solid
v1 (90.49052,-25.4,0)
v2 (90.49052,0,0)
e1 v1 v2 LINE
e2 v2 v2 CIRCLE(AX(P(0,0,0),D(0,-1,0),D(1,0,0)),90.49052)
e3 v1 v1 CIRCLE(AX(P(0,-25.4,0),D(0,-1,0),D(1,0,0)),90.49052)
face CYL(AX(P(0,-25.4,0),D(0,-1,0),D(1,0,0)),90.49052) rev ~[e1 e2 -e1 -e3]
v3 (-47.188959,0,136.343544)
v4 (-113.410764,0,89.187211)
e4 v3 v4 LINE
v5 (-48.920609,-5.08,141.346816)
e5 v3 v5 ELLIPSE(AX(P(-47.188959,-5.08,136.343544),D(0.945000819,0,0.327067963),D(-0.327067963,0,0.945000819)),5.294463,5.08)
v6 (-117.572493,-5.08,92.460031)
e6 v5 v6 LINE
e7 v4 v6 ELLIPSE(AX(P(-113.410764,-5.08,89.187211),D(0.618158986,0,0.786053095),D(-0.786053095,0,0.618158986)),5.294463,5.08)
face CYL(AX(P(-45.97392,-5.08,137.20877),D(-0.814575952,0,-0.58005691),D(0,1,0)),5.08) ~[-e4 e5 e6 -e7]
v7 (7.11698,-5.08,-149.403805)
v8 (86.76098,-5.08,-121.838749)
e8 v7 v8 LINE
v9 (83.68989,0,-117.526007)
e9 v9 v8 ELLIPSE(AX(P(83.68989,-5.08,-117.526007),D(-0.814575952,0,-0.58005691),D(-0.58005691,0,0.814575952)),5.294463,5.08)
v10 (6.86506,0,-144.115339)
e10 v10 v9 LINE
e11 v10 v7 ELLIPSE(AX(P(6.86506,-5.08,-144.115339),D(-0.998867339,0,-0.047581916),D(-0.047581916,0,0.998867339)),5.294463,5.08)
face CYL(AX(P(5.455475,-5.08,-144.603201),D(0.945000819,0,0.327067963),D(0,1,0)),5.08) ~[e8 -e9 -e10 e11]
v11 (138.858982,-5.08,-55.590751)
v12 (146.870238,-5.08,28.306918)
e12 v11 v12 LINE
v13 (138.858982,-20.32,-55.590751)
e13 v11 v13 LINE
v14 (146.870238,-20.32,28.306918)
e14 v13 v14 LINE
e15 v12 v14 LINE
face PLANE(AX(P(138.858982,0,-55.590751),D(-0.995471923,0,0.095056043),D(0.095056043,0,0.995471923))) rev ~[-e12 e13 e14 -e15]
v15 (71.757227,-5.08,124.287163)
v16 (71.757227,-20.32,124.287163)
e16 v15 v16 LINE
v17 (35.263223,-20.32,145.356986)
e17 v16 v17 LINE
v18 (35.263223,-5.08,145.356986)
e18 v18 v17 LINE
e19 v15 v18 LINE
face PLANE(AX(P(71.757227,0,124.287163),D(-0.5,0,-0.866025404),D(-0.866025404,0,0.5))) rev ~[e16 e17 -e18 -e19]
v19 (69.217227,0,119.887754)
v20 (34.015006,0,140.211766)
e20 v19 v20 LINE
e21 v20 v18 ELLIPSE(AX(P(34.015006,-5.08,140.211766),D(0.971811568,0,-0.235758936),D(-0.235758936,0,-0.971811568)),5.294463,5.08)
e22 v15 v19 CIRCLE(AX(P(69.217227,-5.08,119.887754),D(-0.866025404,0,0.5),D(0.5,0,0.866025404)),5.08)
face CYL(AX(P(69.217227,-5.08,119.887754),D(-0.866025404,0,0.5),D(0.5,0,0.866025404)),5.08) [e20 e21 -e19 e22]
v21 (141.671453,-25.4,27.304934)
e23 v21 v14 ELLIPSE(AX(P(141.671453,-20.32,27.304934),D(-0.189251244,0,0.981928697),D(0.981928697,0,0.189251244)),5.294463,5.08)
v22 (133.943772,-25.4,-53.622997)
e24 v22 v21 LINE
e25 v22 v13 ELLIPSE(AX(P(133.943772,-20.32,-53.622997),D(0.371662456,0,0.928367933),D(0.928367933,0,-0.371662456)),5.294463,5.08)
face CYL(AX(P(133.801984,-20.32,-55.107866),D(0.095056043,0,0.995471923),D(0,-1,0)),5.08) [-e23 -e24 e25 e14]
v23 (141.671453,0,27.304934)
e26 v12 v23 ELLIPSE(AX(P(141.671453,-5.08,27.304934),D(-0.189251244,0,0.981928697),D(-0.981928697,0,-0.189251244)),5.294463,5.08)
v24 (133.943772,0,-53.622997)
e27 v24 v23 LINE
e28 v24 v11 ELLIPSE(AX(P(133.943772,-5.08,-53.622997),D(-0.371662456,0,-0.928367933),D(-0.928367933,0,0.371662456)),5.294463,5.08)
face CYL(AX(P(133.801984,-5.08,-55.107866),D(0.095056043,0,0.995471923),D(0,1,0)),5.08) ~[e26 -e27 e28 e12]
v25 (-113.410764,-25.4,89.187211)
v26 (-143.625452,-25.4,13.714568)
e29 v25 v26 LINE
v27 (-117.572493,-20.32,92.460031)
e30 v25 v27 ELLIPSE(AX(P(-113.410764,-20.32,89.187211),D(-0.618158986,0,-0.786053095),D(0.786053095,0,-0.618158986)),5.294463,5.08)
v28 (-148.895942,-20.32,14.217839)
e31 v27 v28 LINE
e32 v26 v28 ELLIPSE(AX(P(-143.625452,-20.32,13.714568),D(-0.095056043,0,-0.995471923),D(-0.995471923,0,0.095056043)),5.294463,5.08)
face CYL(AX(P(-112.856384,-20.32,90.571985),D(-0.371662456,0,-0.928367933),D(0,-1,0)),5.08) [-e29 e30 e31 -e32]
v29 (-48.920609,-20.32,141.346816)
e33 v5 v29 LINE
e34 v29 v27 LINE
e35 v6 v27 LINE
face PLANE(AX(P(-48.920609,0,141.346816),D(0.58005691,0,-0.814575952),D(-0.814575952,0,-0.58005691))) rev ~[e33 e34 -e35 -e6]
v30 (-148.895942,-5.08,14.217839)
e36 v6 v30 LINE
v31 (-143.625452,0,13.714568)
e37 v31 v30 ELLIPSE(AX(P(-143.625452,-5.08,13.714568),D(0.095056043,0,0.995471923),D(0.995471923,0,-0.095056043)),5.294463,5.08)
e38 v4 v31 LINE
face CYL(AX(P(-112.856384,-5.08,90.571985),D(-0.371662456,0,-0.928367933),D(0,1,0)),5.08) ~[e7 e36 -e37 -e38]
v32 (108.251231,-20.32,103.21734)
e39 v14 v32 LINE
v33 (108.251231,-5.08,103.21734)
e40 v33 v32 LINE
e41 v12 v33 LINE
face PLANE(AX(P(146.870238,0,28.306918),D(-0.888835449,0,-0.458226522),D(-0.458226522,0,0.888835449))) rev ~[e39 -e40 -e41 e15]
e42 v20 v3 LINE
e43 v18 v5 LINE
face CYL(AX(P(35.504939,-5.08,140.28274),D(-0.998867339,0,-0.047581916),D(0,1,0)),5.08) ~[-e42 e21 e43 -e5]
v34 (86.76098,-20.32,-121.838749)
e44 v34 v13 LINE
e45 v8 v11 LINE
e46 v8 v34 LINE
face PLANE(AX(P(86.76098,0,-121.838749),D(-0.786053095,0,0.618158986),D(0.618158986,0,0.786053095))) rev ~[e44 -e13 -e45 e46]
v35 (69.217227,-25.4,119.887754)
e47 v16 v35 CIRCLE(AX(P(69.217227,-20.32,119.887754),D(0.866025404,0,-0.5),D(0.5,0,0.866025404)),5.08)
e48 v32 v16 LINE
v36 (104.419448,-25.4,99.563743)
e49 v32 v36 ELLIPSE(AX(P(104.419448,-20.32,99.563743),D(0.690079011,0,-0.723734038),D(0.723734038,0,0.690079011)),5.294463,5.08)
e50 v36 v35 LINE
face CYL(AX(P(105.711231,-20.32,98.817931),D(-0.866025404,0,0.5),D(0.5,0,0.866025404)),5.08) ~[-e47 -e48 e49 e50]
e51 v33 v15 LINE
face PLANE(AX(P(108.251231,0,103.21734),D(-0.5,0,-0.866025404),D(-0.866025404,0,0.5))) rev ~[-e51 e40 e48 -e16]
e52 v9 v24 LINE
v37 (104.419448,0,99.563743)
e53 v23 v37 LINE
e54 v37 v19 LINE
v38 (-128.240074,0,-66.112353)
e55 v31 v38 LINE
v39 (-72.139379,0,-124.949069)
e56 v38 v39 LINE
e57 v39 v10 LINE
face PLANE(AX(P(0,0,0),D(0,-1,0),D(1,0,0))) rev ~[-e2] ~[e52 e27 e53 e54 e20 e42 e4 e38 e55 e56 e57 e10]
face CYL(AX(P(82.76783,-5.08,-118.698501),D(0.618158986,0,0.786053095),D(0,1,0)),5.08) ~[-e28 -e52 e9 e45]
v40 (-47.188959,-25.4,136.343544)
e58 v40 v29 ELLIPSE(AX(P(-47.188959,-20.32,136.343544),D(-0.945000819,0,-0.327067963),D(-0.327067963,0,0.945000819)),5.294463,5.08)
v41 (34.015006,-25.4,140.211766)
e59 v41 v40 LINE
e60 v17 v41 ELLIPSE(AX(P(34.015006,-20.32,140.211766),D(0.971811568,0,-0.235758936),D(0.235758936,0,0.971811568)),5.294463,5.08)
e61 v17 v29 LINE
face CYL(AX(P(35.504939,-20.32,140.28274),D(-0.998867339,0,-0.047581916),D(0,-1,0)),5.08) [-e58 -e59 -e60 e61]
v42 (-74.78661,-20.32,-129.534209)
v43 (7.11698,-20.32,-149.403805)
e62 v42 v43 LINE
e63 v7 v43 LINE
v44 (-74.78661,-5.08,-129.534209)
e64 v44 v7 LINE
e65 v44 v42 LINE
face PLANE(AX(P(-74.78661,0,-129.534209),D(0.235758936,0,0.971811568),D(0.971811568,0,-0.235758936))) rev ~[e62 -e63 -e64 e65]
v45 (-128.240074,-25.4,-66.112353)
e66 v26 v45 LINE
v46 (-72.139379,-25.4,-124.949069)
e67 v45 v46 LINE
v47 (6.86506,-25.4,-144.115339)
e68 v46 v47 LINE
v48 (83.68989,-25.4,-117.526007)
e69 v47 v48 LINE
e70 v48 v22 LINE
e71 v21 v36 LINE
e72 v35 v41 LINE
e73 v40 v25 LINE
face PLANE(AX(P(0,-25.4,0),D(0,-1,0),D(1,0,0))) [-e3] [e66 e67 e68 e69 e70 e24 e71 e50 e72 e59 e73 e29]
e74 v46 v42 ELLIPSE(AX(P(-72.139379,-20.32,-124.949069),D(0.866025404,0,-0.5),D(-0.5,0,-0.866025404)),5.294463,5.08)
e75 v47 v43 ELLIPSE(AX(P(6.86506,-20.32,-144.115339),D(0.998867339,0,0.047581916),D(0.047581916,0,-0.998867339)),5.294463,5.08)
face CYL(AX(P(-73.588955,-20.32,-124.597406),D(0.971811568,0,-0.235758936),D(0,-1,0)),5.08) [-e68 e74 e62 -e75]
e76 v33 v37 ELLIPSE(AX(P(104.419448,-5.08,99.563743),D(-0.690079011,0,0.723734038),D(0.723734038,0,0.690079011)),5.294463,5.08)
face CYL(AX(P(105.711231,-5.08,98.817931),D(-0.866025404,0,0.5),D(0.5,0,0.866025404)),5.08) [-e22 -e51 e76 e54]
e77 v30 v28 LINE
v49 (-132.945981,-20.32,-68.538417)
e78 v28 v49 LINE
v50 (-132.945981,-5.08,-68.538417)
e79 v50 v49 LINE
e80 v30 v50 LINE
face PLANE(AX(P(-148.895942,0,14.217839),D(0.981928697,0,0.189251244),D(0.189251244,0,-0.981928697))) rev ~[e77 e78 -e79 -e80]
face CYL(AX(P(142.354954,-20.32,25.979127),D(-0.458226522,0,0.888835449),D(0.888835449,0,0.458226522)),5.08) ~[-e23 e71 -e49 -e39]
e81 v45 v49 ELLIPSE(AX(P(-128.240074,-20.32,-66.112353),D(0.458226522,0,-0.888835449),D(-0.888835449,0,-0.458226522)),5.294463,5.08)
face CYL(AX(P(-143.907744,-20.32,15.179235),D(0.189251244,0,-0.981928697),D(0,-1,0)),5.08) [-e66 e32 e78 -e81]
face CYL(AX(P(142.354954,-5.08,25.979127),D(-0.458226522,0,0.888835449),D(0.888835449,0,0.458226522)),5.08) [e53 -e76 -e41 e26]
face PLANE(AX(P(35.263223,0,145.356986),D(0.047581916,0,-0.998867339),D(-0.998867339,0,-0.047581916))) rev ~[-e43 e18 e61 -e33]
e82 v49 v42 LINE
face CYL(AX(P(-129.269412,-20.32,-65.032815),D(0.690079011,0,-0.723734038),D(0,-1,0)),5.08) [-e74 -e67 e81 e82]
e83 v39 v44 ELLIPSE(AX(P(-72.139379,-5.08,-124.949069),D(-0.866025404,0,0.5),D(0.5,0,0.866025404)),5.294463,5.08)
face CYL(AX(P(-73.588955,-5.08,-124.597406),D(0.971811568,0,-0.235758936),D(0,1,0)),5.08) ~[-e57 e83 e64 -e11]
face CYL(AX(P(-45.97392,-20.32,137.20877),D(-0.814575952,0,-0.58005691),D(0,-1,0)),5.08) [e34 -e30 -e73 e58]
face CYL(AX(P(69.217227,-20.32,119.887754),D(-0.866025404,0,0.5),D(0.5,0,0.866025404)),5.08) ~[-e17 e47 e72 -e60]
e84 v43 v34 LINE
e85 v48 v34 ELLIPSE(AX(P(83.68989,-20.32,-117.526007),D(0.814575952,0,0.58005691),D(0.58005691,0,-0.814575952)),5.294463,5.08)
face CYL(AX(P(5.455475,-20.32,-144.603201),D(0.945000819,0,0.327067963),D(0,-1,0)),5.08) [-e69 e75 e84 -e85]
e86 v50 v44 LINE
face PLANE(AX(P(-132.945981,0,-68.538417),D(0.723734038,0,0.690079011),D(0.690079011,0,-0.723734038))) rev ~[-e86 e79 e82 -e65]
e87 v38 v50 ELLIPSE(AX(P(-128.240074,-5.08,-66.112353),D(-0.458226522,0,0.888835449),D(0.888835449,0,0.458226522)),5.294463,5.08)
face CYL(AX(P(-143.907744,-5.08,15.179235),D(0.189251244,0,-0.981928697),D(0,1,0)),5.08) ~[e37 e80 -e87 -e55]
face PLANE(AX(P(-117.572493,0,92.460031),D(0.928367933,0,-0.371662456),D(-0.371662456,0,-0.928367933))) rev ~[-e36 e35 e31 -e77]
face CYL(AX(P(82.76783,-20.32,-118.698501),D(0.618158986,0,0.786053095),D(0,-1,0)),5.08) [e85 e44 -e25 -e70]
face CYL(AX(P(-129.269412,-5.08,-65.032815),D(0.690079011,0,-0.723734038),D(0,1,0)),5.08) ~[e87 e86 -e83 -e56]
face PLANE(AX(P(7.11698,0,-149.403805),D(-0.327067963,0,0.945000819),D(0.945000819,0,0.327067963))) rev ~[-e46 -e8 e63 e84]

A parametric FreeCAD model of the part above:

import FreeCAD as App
import Part
import Sketcher
Q = App.Units.Quantity


def edges_at(feature, points):
    """Names of the edges that pass closest to the given points."""
    edges = feature.Shape.Edges
    near = lambda p: min(range(len(edges)), key=lambda i: edges[i].distToShape(Part.Vertex(*p))[0])
    return sorted({f"Edge{near(p) + 1}" for p in points})


def add_polygon(sketch, points):
    """Adds a closed chain of lines whose ends are joined by coincident constraints."""
    first, n = sketch.GeometryCount, len(points)
    for a, b in zip(points, points[1:] + points[:1]):
        sketch.addGeometry(Part.LineSegment(App.Vector(*a, 0), App.Vector(*b, 0)), False)
    for i in range(n):
        sketch.addConstraint(Sketcher.Constraint("Coincident", first + i, 2, first + (i + 1) % n, 1))

doc = App.newDocument("Part")
body = doc.addObject("PartDesign::Body", "Body")

sketch1 = body.newObject("Sketcher::SketchObject", "Sketch")
sketch1.AttachmentSupport = (doc.getObject("XZ_Plane"), [""])
sketch1.MapMode = "FlatFace"
add_polygon(sketch1, [(108.3, 103.2), (71.8, 124.3), (35.3, 145.4), (-48.9, 141.3), (-117.6, 92.5), (-148.9, 14.2), (-132.9, -68.5), (-74.8, -129.5), (7.1, -149.4), (86.8, -121.8), (138.9, -55.6), (146.9, 28.3)])
add_polygon(sketch1, [(-16.1, 73.6), (3.7, 78.9), (47.3, 62.4), (71.8, 25.1), (72.9, 23.3), (70.6, -23.3), (41.4, -59.7), (-3.7, -72), (-47.3, -55.4), (-72.9, -16.3), (-70.6, 30.3), (-53, 52.3)])
sketch1.addConstraint([
    Sketcher.Constraint("Parallel", 0, 1),
    Sketcher.Constraint("Parallel", 14, 15),
    Sketcher.Constraint("Parallel", 12, 18),
    Sketcher.Constraint("Parallel", 13, 19),
    Sketcher.Constraint("Parallel", 15, 20),
    Sketcher.Constraint("Parallel", 16, 21),
    Sketcher.Constraint("Parallel", 17, 22),
    Sketcher.Constraint("Vertical", 0, 2, 14, 2),
    Sketcher.Constraint("Equal", 0, 1),
    Sketcher.Constraint("Equal", 2, 3),
    Sketcher.Constraint("Equal", 3, 4),
    Sketcher.Constraint("Equal", 4, 5),
    Sketcher.Constraint("Equal", 5, 6),
    Sketcher.Constraint("Equal", 6, 7),
    Sketcher.Constraint("Equal", 7, 8),
    Sketcher.Constraint("Equal", 8, 9),
    Sketcher.Constraint("Equal", 9, 10),
    Sketcher.Constraint("Equal", 10, 11),
    Sketcher.Constraint("Equal", 13, 16),
    Sketcher.Constraint("Equal", 16, 17),
    Sketcher.Constraint("Equal", 17, 18),
    Sketcher.Constraint("Equal", 18, 19),
    Sketcher.Constraint("Equal", 19, 20),
    Sketcher.Constraint("Equal", 20, 21),
    Sketcher.Constraint("Angle", 0, Q("150 deg")),
    Sketcher.Constraint("Angle", 23, Q("30 deg")),
    Sketcher.Constraint("Angle", 12, Q("15.210015 deg")),
    Sketcher.Constraint("Angle", 13, Q("-20.789985 deg")),
    Sketcher.Constraint("Angle", 14, Q("-56.789985 deg")),
    Sketcher.Constraint("Angle", 16, Q("-92.789985 deg")),
    Sketcher.Constraint("Angle", 17, Q("-128.789985 deg")),
    Sketcher.Constraint("DistanceX", -1, 1, 12, 2, Q("3.676901 mm")),
    Sketcher.Constraint("DistanceX", 18, 2, -1, 1, Q("3.676901 mm")),
    Sketcher.Constraint("DistanceX", 6, 2, 2, 2, Q("25.866002 mm")),
    Sketcher.Constraint("DistanceX", 7, 2, 8, 2, Q("79.644 mm")),
    Sketcher.Constraint("DistanceX", 8, 2, 9, 2, Q("52.098002 mm")),
    Sketcher.Constraint("DistanceY", 8, 2, 9, 2, Q("66.247998 mm")),
    Sketcher.Constraint("DistanceY", 13, 2, 12, 2, Q("16.570899 mm")),
    Sketcher.Constraint("DistanceX", 5, 2, 19, 2, Q("85.6229 mm")),
    Sketcher.Constraint("DistanceX", 20, 2, 22, 2, Q("19.931502 mm")),
    Sketcher.Constraint("Distance", 14, Q("44.611509 mm")),
    Sketcher.Constraint("DistanceX", 2, 2, -1, 1, Q("48.920609 mm")),
    Sketcher.Constraint("DistanceY", -1, 1, 3, 2, Q("92.460031 mm")),
    Sketcher.Constraint("DistanceX", 4, 2, -1, 1, Q("148.895942 mm")),
    Sketcher.Constraint("DistanceY", -1, 1, 4, 2, Q("14.217839 mm")),
    Sketcher.Constraint("DistanceX", -1, 1, 7, 2, Q("7.11698 mm")),
    Sketcher.Constraint("DistanceY", -1, 1, 10, 2, Q("28.306918 mm")),
    Sketcher.Constraint("DistanceY", 17, 2, -1, 1, Q("59.704631 mm")),
])
pad1 = body.newObject("PartDesign::Pad", "Pad")
pad1.Profile = sketch1
pad1.Length = Q("1 in")

sketch2 = body.newObject("Sketcher::SketchObject", "Sketch001")
sketch2.AttachmentSupport = (doc.getObject("XZ_Plane"), [""])
sketch2.MapMode = "FlatFace"
sketch2.AttachmentOffset = App.Placement(App.Vector(0, 0, 1 * 25.4), App.Rotation())
sketch2.addGeometry(Part.Circle(App.Vector(0, 0, 0), App.Vector(0, 0, 1), 90.49052), False)
add_polygon(sketch2, [(47.323081, 62.376056), (72.893452, 23.315336), (70.621002, -23.315336), (41.37373, -59.704631), (-3.676901, -71.953073), (-47.323081, -55.382174), (-72.893452, -16.321455), (-70.621002, 30.309218), (-52.96195, 52.280513), (-16.076405, 73.576392), (3.676901, 78.946954)])
sketch2.addConstraint([
    Sketcher.Constraint("Coincident", 0, 3, -1, 1),
    Sketcher.Constraint("Diameter", 0, Q("180.98104 mm")),
    Sketcher.Constraint("DistanceX", 4, 2, -1, 1, Q("3.676901 mm")),
    Sketcher.Constraint("DistanceX", -1, 1, 10, 2, Q("3.676901 mm")),
    Sketcher.Constraint("DistanceY", 4, 2, 5, 2, Q("16.570899 mm")),
    Sketcher.Constraint("DistanceX", 7, 2, 4, 2, Q("66.944101 mm")),
    Sketcher.Constraint("DistanceX", 6, 2, 8, 2, Q("19.931502 mm")),
    Sketcher.Constraint("DistanceY", 11, 2, 10, 2, Q("16.570899 mm")),
    Sketcher.Constraint("Distance", 1, Q("46.686012 mm")),
    Sketcher.Constraint("Distance", 2, Q("46.686012 mm")),
    Sketcher.Constraint("Distance", 3, Q("46.686012 mm")),
    Sketcher.Constraint("Distance", 4, Q("46.686012 mm")),
    Sketcher.Constraint("Distance", 5, Q("46.686012 mm")),
    Sketcher.Constraint("Distance", 6, Q("46.686012 mm")),
    Sketcher.Constraint("Distance", 7, Q("46.686012 mm")),
    Sketcher.Constraint("Distance", 9, Q("42.591758 mm")),
    Sketcher.Constraint("Distance", 10, Q("20.47037 mm")),
    Sketcher.Constraint("Distance", 11, Q("46.686012 mm")),
    Sketcher.Constraint("DistanceX", -1, 1, 3, 2, Q("41.37373 mm")),
    Sketcher.Constraint("DistanceY", 3, 2, -1, 1, Q("59.704631 mm")),
    Sketcher.Constraint("DistanceX", 8, 2, -1, 1, Q("52.96195 mm")),
    Sketcher.Constraint("DistanceY", -1, 1, 9, 2, Q("73.576392 mm")),
    Sketcher.Constraint("DistanceX", 2, 2, 1, 2, Q("2.27245 mm")),
    Sketcher.Constraint("DistanceY", 4, 2, 1, 2, Q("95.268409 mm")),
])
pocket1 = body.newObject("PartDesign::Pocket", "Pocket")
pocket1.Profile = sketch2
pocket1.Length = Q("1 in")
doc.recompute()

fillet = body.newObject("PartDesign::Fillet", "Fillet")
fillet.Base = (pocket1, edges_at(pocket1, [
    (-133.234, -25.4, 53.339),
    (-140.921, -25.4, -27.16),
    (-103.866, -25.4, -99.036),
    (-33.835, -25.4, -139.469),
    (46.939, -25.4, -135.621),
    (112.81, -25.4, -88.715),
    (142.865, -25.4, -13.642),
    (127.561, -25.4, 65.762),
    (90.004, -25.4, 113.752),
    (-6.829, -25.4, 143.352),
    (-83.247, -25.4, 116.903),
]))
fillet.Radius = Q("0.2 in")
doc.recompute()

fillet2 = body.newObject("PartDesign::Fillet", "Fillet001")
fillet2.Base = (fillet, edges_at(fillet, [
    (127.561, 0, 65.762),
    (142.865, 0, -13.642),
    (112.81, 0, -88.715),
    (46.939, 0, -135.621),
    (-33.835, 0, -139.469),
    (-103.866, 0, -99.036),
    (-140.921, 0, -27.16),
    (-6.829, 0, 143.352),
    (90.004, 0, 113.752),
    (-83.247, 0, 116.903),
    (-133.234, 0, 53.339),
]))
fillet2.Radius = Q("0.2 in")

doc.recompute()
